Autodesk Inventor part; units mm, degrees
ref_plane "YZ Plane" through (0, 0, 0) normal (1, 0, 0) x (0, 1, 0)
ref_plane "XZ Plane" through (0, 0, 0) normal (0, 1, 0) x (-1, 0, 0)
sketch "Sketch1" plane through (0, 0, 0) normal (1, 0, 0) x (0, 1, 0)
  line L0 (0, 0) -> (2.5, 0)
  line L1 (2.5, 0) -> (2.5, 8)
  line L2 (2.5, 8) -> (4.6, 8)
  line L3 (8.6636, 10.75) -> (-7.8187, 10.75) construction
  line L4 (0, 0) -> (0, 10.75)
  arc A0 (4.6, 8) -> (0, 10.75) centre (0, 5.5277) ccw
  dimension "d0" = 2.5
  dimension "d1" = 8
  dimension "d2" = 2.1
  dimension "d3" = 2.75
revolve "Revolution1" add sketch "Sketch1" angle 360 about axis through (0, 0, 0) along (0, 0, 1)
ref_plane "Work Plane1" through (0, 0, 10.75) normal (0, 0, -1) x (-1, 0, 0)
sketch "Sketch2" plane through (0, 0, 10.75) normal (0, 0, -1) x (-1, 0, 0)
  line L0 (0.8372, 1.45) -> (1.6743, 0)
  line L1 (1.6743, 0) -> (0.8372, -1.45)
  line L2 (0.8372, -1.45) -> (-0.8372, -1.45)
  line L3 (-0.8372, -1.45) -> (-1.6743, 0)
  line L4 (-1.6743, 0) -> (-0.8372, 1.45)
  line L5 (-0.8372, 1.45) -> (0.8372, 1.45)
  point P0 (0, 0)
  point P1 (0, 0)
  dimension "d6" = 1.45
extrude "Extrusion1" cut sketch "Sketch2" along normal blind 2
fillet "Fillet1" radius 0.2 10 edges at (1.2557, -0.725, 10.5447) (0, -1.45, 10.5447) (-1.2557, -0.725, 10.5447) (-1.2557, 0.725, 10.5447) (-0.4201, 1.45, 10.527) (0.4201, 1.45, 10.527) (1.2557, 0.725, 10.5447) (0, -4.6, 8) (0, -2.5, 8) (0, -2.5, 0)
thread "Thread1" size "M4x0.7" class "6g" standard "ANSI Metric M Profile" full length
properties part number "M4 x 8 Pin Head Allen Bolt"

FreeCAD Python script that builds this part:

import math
import FreeCAD as App
import Part
import Sketcher
from FreeCAD import Vector


def edges_at(feature, points):
    """Names of the edges that pass closest to the given points."""
    edges = feature.Shape.Edges
    near = lambda p: min(range(len(edges)), key=lambda i: edges[i].distToShape(Part.Vertex(*p))[0])
    return sorted({f"Edge{near(p) + 1}" for p in points})

doc = App.newDocument("Part")
body = doc.addObject("PartDesign::Body", "Body")

# Sketch on YZ plane
sketch1 = body.newObject("Sketcher::SketchObject", "Sketch")
sketch1.AttachmentSupport = (doc.getObject("YZ_Plane"), [""])
sketch1.MapMode = "FlatFace"
sketch1.addGeometry([
    Part.LineSegment(Vector(0, 10.75, 0), Vector(0, 0, 0)),  # 0
    Part.LineSegment(Vector(0, 0, 0), Vector(2.5, 0, 0)),  # 1
    Part.LineSegment(Vector(2.5, 0, 0), Vector(2.5, 8, 0)),  # 2
    Part.LineSegment(Vector(2.5, 8, 0), Vector(4.6, 8, 0)),  # 3
    Part.ArcOfCircle(Part.Circle(Vector(0, 5.5277, 0), Vector(0, 0, 1), 5.222286), math.radians(28.256097), math.radians(90)),  # 4
], False)
sketch1.addConstraint([
    Sketcher.Constraint("Coincident", 0, 2, 1, 1),
    Sketcher.Constraint("Coincident", 1, 2, 2, 1),
    Sketcher.Constraint("Coincident", 2, 2, 3, 1),
    Sketcher.Constraint("Coincident", 3, 2, 4, 1),
    Sketcher.Constraint("Coincident", 4, 2, 0, 1),
    Sketcher.Constraint("Vertical", 0),
    Sketcher.Constraint("Horizontal", 1),
    Sketcher.Constraint("Vertical", 2),
    Sketcher.Constraint("Horizontal", 3),
    Sketcher.Constraint("Coincident", 0, 2, -1, 1),
    Sketcher.Constraint("PointOnObject", 4, 3, -2),
    Sketcher.Constraint("DistanceY", 2, 1, 2, 2, 8.0),
    Sketcher.Constraint("DistanceX", 1, 1, 1, 2, 2.5),
    Sketcher.Constraint("DistanceX", 3, 1, 3, 2, 2.1),
    Sketcher.Constraint("DistanceY", 2, 2, 4, 2, 2.75),
])
revolution = body.newObject("PartDesign::Revolution", "Revolution")
revolution.Profile = sketch1
revolution.ReferenceAxis = (sketch1, ["V_Axis"])
revolution.Angle = 360

# Sketch on XY plane
sketch2 = body.newObject("Sketcher::SketchObject", "Sketch001")
sketch2.AttachmentSupport = (doc.getObject("XY_Plane"), [""])
sketch2.MapMode = "FlatFace"
sketch2.AttachmentOffset = App.Placement(Vector(0, 0, 10.75), App.Rotation())
sketch2.addGeometry([
    Part.LineSegment(Vector(-1.6743, 0, 0), Vector(-0.8372, 1.45, 0)),  # 0
    Part.LineSegment(Vector(-0.8372, 1.45, 0), Vector(0.8372, 1.45, 0)),  # 1
    Part.LineSegment(Vector(0.8372, 1.45, 0), Vector(1.6743, 0, 0)),  # 2
    Part.LineSegment(Vector(1.6743, 0, 0), Vector(0.8372, -1.45, 0)),  # 3
    Part.LineSegment(Vector(0.8372, -1.45, 0), Vector(-0.8372, -1.45, 0)),  # 4
    Part.LineSegment(Vector(-0.8372, -1.45, 0), Vector(-1.6743, 0, 0)),  # 5
], False)
sketch2.addConstraint([
    Sketcher.Constraint("Coincident", 0, 2, 1, 1),
    Sketcher.Constraint("Coincident", 1, 2, 2, 1),
    Sketcher.Constraint("Coincident", 2, 2, 3, 1),
    Sketcher.Constraint("Coincident", 3, 2, 4, 1),
    Sketcher.Constraint("Coincident", 4, 2, 5, 1),
    Sketcher.Constraint("Coincident", 5, 2, 0, 1),
    Sketcher.Constraint("Horizontal", 1),
    Sketcher.Constraint("Horizontal", 4),
    Sketcher.Constraint("Symmetric", 0, 2, 3, 2, -1, 1),
    Sketcher.Constraint("Symmetric", 2, 2, 5, 2, -1, 1),
    Sketcher.Constraint("PointOnObject", 2, 2, -1),
    Sketcher.Constraint("Parallel", 2, 5),
    Sketcher.Constraint("Vertical", 1, 2, 3, 2),
    Sketcher.Constraint("DistanceY", -1, 1, 0, 2, 1.45),
    Sketcher.Constraint("DistanceX", 1, 1, 1, 2, 1.6744),
    Sketcher.Constraint("DistanceX", 1, 2, 2, 2, 0.837),
])
pocket1 = body.newObject("PartDesign::Pocket", "Pocket")
pocket1.Profile = sketch2
pocket1.Length = 2
doc.recompute()

fillet = body.newObject("PartDesign::Fillet", "Fillet")
fillet.Base = (pocket1, edges_at(pocket1, [
    (1.256, -0.725, 10.545),
    (0, -1.45, 10.545),
    (-1.256, -0.725, 10.545),
    (-1.256, 0.725, 10.545),
    (-0.42, 1.45, 10.527),
    (0.42, 1.45, 10.527),
    (1.256, 0.725, 10.545),
    (0, -4.6, 8),
    (0, -2.5, 8),
    (0, -2.5, 0),
]))
fillet.Radius = 0.2

doc.recompute()
